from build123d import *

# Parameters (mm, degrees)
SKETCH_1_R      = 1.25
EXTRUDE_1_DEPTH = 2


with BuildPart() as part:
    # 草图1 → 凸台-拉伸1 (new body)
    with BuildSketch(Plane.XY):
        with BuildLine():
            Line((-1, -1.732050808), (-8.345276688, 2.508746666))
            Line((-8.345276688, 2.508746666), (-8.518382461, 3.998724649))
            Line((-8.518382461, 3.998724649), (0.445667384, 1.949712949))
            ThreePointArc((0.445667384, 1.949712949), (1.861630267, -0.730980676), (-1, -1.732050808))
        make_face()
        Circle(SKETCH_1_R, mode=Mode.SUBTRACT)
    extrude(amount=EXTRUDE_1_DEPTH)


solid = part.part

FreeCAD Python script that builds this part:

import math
import FreeCAD as App
import Part
import Sketcher
from FreeCAD import Vector
Q = App.Units.Quantity

doc = App.newDocument("Part")
body = doc.addObject("PartDesign::Body", "Body")

sketch1 = body.newObject("Sketcher::SketchObject", "Sketch")
sketch1.AttachmentSupport = (doc.getObject("XY_Plane"), [""])
sketch1.MapMode = "FlatFace"
sketch1.addGeometry([
    Part.LineSegment(Vector(-8.345277, 2.508747, 0), Vector(-1, -1.732051, 0)),
    Part.ArcOfCircle(Part.Circle(Vector(0, 0, 0), Vector(0, 0, 1), 2), math.radians(-120), math.radians(77.124476)),
    Part.LineSegment(Vector(0.445667, 1.949713, 0), Vector(-8.518382, 3.998725, 0)),
    Part.LineSegment(Vector(-8.518382, 3.998725, 0), Vector(-8.345277, 2.508747, 0)),
    Part.Circle(Vector(0, 0, 0), Vector(0, 0, 1), 1.25),
], False)
sketch1.addConstraint([
    Sketcher.Constraint("Tangent", 0, 2, 1, 1),
    Sketcher.Constraint("Tangent", 1, 2, 2, 1),
    Sketcher.Constraint("Coincident", 2, 2, 3, 1),
    Sketcher.Constraint("Coincident", 3, 2, 0, 1),
    Sketcher.Constraint("Coincident", 1, 3, -1, 1),
    Sketcher.Constraint("Coincident", 4, 3, -1, 1),
    Sketcher.Constraint("Radius", 1, 2.0),
    Sketcher.Constraint("Diameter", 4, 2.5),
    Sketcher.Constraint("Angle", 0, Q("-30 deg")),
    Sketcher.Constraint("Distance", 3, 1.5),
    Sketcher.Constraint("Distance", 2, 9.195251),
    Sketcher.Constraint("DistanceX", 2, 2, 1, 2, 8.96405),
])
pad1 = body.newObject("PartDesign::Pad", "Pad")
pad1.Profile = sketch1
pad1.Length = 2

doc.recompute()
